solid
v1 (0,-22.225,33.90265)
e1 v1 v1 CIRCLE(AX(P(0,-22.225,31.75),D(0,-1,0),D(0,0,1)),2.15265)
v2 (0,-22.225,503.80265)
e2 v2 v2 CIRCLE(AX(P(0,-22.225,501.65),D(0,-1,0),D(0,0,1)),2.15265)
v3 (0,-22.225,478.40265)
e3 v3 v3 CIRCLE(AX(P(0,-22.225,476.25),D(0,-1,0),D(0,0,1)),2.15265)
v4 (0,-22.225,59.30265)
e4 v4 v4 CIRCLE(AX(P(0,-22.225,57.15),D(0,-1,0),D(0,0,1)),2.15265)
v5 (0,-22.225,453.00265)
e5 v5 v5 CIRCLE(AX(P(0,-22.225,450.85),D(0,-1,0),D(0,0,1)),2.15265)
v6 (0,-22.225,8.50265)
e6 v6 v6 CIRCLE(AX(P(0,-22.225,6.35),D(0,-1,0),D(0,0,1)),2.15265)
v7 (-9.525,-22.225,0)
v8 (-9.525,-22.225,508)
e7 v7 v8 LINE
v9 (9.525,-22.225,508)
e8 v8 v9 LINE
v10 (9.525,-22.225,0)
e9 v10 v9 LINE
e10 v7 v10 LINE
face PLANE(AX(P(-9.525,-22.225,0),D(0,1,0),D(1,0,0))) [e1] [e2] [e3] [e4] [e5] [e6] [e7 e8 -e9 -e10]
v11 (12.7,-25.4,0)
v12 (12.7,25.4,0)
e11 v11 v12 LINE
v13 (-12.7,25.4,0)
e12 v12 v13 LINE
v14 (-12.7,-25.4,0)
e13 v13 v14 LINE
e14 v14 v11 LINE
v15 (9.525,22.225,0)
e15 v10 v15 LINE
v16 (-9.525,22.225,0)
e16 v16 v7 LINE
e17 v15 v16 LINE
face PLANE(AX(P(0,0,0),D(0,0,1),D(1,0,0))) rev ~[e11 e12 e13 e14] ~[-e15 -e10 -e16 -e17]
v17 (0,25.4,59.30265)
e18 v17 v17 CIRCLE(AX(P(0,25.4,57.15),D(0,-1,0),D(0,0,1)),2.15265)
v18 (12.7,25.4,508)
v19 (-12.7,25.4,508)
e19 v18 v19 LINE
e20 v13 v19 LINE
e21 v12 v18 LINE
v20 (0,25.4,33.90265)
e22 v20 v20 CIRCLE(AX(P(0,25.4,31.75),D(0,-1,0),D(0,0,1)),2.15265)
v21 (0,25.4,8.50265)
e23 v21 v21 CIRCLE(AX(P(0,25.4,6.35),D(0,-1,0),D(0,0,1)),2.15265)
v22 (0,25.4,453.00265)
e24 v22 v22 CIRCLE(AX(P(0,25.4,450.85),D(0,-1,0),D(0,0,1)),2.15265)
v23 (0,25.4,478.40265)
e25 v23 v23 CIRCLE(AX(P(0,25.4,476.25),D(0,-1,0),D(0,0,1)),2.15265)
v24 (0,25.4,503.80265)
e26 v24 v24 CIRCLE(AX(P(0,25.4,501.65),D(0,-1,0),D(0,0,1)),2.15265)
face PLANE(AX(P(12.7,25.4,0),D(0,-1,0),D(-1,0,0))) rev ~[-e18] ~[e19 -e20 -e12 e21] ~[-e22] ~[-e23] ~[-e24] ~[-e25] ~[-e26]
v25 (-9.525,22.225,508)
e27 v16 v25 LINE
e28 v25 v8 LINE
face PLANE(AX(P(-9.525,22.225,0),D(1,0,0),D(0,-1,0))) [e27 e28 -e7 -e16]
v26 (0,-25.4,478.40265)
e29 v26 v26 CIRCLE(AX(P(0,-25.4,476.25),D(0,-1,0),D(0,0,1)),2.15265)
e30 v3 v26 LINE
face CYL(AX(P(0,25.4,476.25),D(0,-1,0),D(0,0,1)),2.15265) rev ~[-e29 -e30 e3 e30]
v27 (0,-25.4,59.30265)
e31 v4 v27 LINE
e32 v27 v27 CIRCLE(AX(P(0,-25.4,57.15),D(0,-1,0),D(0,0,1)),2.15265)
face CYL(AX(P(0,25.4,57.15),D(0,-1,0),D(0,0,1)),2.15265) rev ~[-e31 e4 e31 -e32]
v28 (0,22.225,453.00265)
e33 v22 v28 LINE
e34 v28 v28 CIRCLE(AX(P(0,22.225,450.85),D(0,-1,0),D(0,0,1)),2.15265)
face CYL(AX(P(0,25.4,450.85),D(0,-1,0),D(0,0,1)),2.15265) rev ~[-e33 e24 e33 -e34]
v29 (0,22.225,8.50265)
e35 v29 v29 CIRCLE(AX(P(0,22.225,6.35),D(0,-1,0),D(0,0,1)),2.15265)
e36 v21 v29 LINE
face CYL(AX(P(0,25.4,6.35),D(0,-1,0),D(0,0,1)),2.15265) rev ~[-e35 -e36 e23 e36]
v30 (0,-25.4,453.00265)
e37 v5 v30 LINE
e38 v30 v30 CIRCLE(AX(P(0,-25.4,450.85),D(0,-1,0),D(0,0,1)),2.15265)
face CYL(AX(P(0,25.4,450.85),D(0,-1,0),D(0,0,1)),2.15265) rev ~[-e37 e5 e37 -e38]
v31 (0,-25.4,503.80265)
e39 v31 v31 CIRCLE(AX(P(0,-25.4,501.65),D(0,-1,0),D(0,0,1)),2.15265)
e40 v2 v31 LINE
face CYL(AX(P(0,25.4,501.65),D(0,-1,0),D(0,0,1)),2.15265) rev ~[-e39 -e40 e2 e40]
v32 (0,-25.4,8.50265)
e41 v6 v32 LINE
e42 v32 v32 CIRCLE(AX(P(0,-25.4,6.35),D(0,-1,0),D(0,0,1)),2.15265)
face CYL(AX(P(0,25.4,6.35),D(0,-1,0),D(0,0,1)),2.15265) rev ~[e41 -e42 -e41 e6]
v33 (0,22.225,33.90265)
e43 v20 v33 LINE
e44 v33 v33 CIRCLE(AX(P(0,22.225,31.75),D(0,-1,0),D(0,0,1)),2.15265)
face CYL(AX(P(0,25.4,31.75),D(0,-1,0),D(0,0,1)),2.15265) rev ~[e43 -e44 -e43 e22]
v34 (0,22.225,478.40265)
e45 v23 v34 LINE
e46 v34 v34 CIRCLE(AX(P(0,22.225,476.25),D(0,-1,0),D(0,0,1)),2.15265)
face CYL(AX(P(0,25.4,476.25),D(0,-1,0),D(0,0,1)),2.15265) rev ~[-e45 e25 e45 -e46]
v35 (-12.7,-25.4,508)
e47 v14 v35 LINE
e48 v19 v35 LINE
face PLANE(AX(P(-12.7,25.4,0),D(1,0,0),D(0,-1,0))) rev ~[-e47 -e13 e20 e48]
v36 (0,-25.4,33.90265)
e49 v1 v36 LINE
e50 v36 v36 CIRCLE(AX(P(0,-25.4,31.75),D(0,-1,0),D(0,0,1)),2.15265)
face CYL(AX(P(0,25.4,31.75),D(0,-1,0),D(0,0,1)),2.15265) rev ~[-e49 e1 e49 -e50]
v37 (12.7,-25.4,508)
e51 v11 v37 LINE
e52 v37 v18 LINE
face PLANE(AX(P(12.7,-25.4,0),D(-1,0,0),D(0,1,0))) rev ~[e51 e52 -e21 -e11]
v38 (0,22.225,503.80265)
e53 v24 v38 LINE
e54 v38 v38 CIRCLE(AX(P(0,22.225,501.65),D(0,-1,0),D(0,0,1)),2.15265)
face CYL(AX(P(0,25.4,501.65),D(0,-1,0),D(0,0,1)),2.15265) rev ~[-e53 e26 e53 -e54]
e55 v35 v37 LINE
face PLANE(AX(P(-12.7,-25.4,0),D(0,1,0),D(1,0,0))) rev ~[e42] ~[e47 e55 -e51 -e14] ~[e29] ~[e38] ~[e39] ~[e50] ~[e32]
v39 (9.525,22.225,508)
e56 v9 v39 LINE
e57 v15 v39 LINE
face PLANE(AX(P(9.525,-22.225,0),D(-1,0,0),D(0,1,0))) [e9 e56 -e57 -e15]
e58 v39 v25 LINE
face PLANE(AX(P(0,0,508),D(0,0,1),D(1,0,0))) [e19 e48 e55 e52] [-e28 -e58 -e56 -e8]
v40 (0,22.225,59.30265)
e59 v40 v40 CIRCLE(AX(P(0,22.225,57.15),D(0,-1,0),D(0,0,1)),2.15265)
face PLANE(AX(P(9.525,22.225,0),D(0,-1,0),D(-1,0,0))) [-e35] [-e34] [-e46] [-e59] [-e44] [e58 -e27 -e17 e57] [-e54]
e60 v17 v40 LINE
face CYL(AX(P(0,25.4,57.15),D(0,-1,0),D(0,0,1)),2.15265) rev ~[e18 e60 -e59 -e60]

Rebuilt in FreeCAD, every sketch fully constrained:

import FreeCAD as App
import Part
import Sketcher

V = App.Vector
Q = App.Units.Quantity

doc = App.newDocument("Part")
params = doc.addObject("Spreadsheet::Sheet", "Params")
for row, (alias, value) in enumerate([
    ("sketch1_width", "1 in"),
    ("sketch1_height", "2 in"),
    ("pad1_length", "20 in"),
    ("hole_diameter", "0.1695 in"),
    ("hole_depth", "2 in"),
], start=1):
    params.set(f"A{row}", alias)
    params.set(f"B{row}", "=" + value)
    params.setAlias(f"B{row}", alias)

body = doc.addObject("PartDesign::Body", "Body")

sketch1 = doc.addObject("Sketcher::SketchObject", "Sketch")
body.addObject(sketch1)
sketch1.AttachmentSupport = (doc.XY_Plane, [""])
sketch1.MapMode = "FlatFace"
sketch1.addGeometry(Part.LineSegment(V(-12.7, 25.4, 0), V(-12.7, -25.4, 0)), False)
sketch1.addGeometry(Part.LineSegment(V(-12.7, -25.4, 0), V(12.7, -25.4, 0)), False)
sketch1.addGeometry(Part.LineSegment(V(12.7, -25.4, 0), V(12.7, 25.4, 0)), False)
sketch1.addGeometry(Part.LineSegment(V(12.7, 25.4, 0), V(-12.7, 25.4, 0)), False)
sketch1.addGeometry(Part.LineSegment(V(9.525, -22.225, 0), V(-9.525, -22.225, 0)), False)
sketch1.addGeometry(Part.LineSegment(V(-9.525, -22.225, 0), V(-9.525, 22.225, 0)), False)
sketch1.addGeometry(Part.LineSegment(V(-9.525, 22.225, 0), V(9.525, 22.225, 0)), False)
sketch1.addGeometry(Part.LineSegment(V(9.525, 22.225, 0), V(9.525, -22.225, 0)), False)
sketch1.addConstraint(Sketcher.Constraint("Coincident", 0, 2, 1, 1))
sketch1.addConstraint(Sketcher.Constraint("Coincident", 1, 2, 2, 1))
sketch1.addConstraint(Sketcher.Constraint("Coincident", 2, 2, 3, 1))
sketch1.addConstraint(Sketcher.Constraint("Coincident", 3, 2, 0, 1))
sketch1.addConstraint(Sketcher.Constraint("Coincident", 4, 2, 5, 1))
sketch1.addConstraint(Sketcher.Constraint("Coincident", 5, 2, 6, 1))
sketch1.addConstraint(Sketcher.Constraint("Coincident", 6, 2, 7, 1))
sketch1.addConstraint(Sketcher.Constraint("Coincident", 7, 2, 4, 1))
sketch1.addConstraint(Sketcher.Constraint("Vertical", 0))
sketch1.addConstraint(Sketcher.Constraint("Horizontal", 1))
sketch1.addConstraint(Sketcher.Constraint("Vertical", 2))
sketch1.addConstraint(Sketcher.Constraint("Horizontal", 3))
sketch1.addConstraint(Sketcher.Constraint("Horizontal", 4))
sketch1.addConstraint(Sketcher.Constraint("Vertical", 5))
sketch1.addConstraint(Sketcher.Constraint("Horizontal", 6))
sketch1.addConstraint(Sketcher.Constraint("Vertical", 7))
sketch1.addConstraint(Sketcher.Constraint("Symmetric", 0, 2, 2, 2, -1, 1))
sketch1.addConstraint(Sketcher.Constraint("Symmetric", 4, 2, 6, 2, -1, 1))
sketch1.addConstraint(Sketcher.Constraint("DistanceX", 1, 1, 1, 2, Q("1 in")))
sketch1.addConstraint(Sketcher.Constraint("DistanceY", 0, 2, 0, 1, Q("2 in")))
sketch1.addConstraint(Sketcher.Constraint("DistanceX", 0, 2, 4, 2, Q("0.125 in")))
sketch1.addConstraint(Sketcher.Constraint("DistanceY", 0, 2, 4, 2, Q("0.125 in")))
sketch1.setExpression("Constraints[18]", "Params.sketch1_width")
sketch1.setExpression("Constraints[19]", "Params.sketch1_height")
pad1 = doc.addObject("PartDesign::Pad", "Pad")
body.addObject(pad1)
pad1.Profile = sketch1
pad1.setExpression("Length", "Params.pad1_length")

sketch2 = doc.addObject("Sketcher::SketchObject", "Sketch001")
body.addObject(sketch2)
sketch2.AttachmentSupport = (doc.XZ_Plane, [""])
sketch2.MapMode = "FlatFace"
sketch2.AttachmentOffset = App.Placement(V(0, 0, -1 * 25.4), App.Rotation())
sketch2.addGeometry(Part.Circle(V(0, 501.65, 0), V(0, 0, 1), 2.15265), False)
sketch2.addGeometry(Part.Circle(V(0, 476.25, 0), V(0, 0, 1), 2.15265), False)
sketch2.addGeometry(Part.Circle(V(0, 450.85, 0), V(0, 0, 1), 2.15265), False)
sketch2.addGeometry(Part.Circle(V(0, 57.15, 0), V(0, 0, 1), 2.15265), False)
sketch2.addGeometry(Part.Circle(V(0, 31.75, 0), V(0, 0, 1), 2.15265), False)
sketch2.addGeometry(Part.Circle(V(0, 6.35, 0), V(0, 0, 1), 2.15265), False)
sketch2.addConstraint(Sketcher.Constraint("Equal", 0, 1))
sketch2.addConstraint(Sketcher.Constraint("Equal", 1, 2))
sketch2.addConstraint(Sketcher.Constraint("Equal", 2, 3))
sketch2.addConstraint(Sketcher.Constraint("Equal", 3, 4))
sketch2.addConstraint(Sketcher.Constraint("Equal", 4, 5))
sketch2.addConstraint(Sketcher.Constraint("PointOnObject", 0, 3, -2))
sketch2.addConstraint(Sketcher.Constraint("PointOnObject", 1, 3, -2))
sketch2.addConstraint(Sketcher.Constraint("PointOnObject", 2, 3, -2))
sketch2.addConstraint(Sketcher.Constraint("PointOnObject", 3, 3, -2))
sketch2.addConstraint(Sketcher.Constraint("PointOnObject", 4, 3, -2))
sketch2.addConstraint(Sketcher.Constraint("PointOnObject", 5, 3, -2))
sketch2.addConstraint(Sketcher.Constraint("DistanceY", 1, 3, 0, 3, Q("1 in")))
sketch2.addConstraint(Sketcher.Constraint("DistanceY", 2, 3, 1, 3, Q("1 in")))
sketch2.addConstraint(Sketcher.Constraint("DistanceY", 4, 3, 3, 3, Q("1 in")))
sketch2.addConstraint(Sketcher.Constraint("DistanceY", 5, 3, 4, 3, Q("1 in")))
sketch2.addConstraint(Sketcher.Constraint("Diameter", 0, Q("0.1695 in")))
sketch2.addConstraint(Sketcher.Constraint("DistanceY", 3, 3, 2, 3, Q("15.5 in")))
sketch2.addConstraint(Sketcher.Constraint("DistanceY", -1, 1, 0, 3, Q("19.75 in")))
doc.recompute()
hole = doc.addObject("PartDesign::Hole", "Hole")
body.addObject(hole)
hole.Profile = sketch2
hole.ThreadType = "None"
hole.setExpression("Diameter", "Params.hole_diameter")
hole.DepthType = "Dimension"
hole.setExpression("Depth", "Params.hole_depth")
hole.DrillPoint = "Angled"
hole.DrillPointAngle = 118
hole.Reversed = True

doc.recompute()
